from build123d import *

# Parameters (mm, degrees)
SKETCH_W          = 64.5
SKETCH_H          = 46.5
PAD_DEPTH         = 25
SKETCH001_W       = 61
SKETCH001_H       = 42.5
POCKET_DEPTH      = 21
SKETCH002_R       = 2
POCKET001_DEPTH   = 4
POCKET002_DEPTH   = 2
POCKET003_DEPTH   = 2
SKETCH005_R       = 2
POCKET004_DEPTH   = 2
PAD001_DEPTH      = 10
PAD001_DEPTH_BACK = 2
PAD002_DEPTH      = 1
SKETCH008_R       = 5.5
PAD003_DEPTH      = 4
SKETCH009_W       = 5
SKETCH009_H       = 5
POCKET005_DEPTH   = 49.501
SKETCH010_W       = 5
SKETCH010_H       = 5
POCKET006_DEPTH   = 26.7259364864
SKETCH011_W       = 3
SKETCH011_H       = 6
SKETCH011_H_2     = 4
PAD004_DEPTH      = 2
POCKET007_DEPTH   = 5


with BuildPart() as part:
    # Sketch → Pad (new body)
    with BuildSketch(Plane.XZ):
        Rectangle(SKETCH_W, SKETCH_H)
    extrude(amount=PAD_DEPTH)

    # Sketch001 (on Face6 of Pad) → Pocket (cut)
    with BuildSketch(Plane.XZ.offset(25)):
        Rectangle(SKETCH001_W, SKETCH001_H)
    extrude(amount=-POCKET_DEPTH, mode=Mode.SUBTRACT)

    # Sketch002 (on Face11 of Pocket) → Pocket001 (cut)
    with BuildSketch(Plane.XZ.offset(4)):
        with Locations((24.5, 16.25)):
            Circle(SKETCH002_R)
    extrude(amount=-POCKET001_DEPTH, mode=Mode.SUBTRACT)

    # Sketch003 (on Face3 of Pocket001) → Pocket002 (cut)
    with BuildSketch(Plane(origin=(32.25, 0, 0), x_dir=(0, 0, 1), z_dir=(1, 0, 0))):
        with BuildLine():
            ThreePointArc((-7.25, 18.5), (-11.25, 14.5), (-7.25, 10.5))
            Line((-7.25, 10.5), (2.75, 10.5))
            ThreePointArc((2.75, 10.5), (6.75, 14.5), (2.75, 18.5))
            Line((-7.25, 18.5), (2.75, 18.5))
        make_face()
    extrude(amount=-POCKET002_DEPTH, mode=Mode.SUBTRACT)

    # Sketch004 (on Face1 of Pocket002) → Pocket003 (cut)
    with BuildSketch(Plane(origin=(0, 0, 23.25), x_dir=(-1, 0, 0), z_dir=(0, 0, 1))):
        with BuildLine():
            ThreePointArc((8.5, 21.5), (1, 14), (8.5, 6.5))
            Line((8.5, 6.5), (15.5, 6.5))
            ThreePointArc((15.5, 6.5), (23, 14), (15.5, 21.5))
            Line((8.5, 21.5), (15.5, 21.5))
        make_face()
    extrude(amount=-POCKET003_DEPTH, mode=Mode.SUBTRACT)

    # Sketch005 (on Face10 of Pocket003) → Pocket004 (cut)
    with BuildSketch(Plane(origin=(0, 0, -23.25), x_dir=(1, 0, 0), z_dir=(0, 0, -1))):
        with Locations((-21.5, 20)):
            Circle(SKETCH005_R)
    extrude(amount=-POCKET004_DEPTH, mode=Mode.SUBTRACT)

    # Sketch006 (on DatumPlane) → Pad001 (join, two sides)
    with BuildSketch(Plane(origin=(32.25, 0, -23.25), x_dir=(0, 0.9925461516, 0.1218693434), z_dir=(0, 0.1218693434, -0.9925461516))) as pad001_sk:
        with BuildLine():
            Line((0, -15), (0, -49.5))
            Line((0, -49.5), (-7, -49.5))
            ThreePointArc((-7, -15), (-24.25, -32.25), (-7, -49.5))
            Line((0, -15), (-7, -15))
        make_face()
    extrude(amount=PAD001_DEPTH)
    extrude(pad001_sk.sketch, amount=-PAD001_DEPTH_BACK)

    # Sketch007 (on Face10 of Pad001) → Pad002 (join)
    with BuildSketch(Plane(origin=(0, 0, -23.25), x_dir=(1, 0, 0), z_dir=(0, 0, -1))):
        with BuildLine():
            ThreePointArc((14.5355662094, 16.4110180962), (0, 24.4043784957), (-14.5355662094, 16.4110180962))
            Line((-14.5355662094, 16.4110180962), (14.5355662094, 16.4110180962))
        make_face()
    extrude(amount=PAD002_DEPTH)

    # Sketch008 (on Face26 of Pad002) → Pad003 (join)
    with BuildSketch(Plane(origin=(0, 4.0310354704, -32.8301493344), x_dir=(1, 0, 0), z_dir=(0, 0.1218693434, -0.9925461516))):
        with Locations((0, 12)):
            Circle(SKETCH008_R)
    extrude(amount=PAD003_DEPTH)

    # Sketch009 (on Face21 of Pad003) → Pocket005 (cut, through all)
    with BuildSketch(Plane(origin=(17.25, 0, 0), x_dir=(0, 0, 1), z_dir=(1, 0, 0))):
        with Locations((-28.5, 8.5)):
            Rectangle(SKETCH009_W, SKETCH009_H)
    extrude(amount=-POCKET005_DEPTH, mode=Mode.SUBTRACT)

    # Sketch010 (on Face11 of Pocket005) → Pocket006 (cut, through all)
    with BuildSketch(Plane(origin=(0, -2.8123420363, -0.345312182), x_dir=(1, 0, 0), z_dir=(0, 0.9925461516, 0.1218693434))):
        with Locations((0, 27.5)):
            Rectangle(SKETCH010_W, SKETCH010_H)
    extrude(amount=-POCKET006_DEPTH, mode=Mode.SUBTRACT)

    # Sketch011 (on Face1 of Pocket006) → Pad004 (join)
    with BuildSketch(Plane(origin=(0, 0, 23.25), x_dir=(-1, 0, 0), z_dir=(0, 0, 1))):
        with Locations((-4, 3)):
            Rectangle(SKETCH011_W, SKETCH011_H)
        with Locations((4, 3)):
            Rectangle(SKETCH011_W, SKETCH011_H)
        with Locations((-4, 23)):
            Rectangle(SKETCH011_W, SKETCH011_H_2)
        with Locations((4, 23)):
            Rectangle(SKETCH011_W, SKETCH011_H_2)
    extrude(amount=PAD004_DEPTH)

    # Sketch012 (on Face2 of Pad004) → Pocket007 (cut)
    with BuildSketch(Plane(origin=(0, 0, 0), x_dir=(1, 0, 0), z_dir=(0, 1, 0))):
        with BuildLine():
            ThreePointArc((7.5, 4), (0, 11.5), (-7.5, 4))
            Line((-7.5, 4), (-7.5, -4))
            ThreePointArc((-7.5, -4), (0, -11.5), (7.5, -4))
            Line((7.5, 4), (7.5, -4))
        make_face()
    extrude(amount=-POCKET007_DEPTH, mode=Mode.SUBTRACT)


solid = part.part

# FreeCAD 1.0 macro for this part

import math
import FreeCAD as App
import Part
import Sketcher
Q = App.Units.Quantity

doc = App.newDocument("Part")
body = doc.addObject("PartDesign::Body", "Body")

# Sketch on XZ plane
sketch1 = doc.addObject("Sketcher::SketchObject", "Sketch")
body.addObject(sketch1)
sketch1.AttachmentSupport = (doc.XZ_Plane, [""])
sketch1.MapMode = "FlatFace"
sketch1.addGeometry([
    Part.LineSegment(App.Vector(-32.25, 23.25, 0), App.Vector(-32.25, -23.25, 0)),
    Part.LineSegment(App.Vector(-32.25, -23.25, 0), App.Vector(32.25, -23.25, 0)),
    Part.LineSegment(App.Vector(32.25, -23.25, 0), App.Vector(32.25, 23.25, 0)),
    Part.LineSegment(App.Vector(32.25, 23.25, 0), App.Vector(-32.25, 23.25, 0)),
], False)
sketch1.addConstraint([
    Sketcher.Constraint("Coincident", 0, 2, 1, 1),
    Sketcher.Constraint("Coincident", 1, 2, 2, 1),
    Sketcher.Constraint("Coincident", 2, 2, 3, 1),
    Sketcher.Constraint("Coincident", 3, 2, 0, 1),
    Sketcher.Constraint("Vertical", 0),
    Sketcher.Constraint("Horizontal", 1),
    Sketcher.Constraint("Vertical", 2),
    Sketcher.Constraint("Horizontal", 3),
    Sketcher.Constraint("Symmetric", 0, 2, 2, 2, -1, 1),
    Sketcher.Constraint("DistanceX", 1, 1, 1, 2, Q("64.5 mm")),
    Sketcher.Constraint("DistanceY", 0, 2, 0, 1, Q("46.5 mm")),
])
pad1 = doc.addObject("PartDesign::Pad", "Pad")
body.addObject(pad1)
pad1.Profile = sketch1
pad1.Length = 25

# Sketch on XZ plane
sketch2 = doc.addObject("Sketcher::SketchObject", "Sketch001")
body.addObject(sketch2)
sketch2.AttachmentSupport = (doc.XZ_Plane, [""])
sketch2.MapMode = "FlatFace"
sketch2.AttachmentOffset = App.Placement(App.Vector(0, 0, 25), App.Rotation())
sketch2.addGeometry([
    Part.LineSegment(App.Vector(-30.5, 21.25, 0), App.Vector(-30.5, -21.25, 0)),
    Part.LineSegment(App.Vector(-30.5, -21.25, 0), App.Vector(30.5, -21.25, 0)),
    Part.LineSegment(App.Vector(30.5, -21.25, 0), App.Vector(30.5, 21.25, 0)),
    Part.LineSegment(App.Vector(30.5, 21.25, 0), App.Vector(-30.5, 21.25, 0)),
], False)
sketch2.addConstraint([
    Sketcher.Constraint("Coincident", 0, 2, 1, 1),
    Sketcher.Constraint("Coincident", 1, 2, 2, 1),
    Sketcher.Constraint("Coincident", 2, 2, 3, 1),
    Sketcher.Constraint("Coincident", 3, 2, 0, 1),
    Sketcher.Constraint("Vertical", 0),
    Sketcher.Constraint("Horizontal", 1),
    Sketcher.Constraint("Vertical", 2),
    Sketcher.Constraint("Horizontal", 3),
    Sketcher.Constraint("Symmetric", 0, 2, 2, 2, -1, 1),
    Sketcher.Constraint("DistanceX", 1, 1, 1, 2, Q("61 mm")),
    Sketcher.Constraint("DistanceY", 0, 2, 0, 1, Q("42.5 mm")),
])
pocket1 = doc.addObject("PartDesign::Pocket", "Pocket")
body.addObject(pocket1)
pocket1.Profile = sketch2
pocket1.Length = 21

# Sketch on XZ plane
sketch3 = doc.addObject("Sketcher::SketchObject", "Sketch002")
body.addObject(sketch3)
sketch3.AttachmentSupport = (doc.XZ_Plane, [""])
sketch3.MapMode = "FlatFace"
sketch3.AttachmentOffset = App.Placement(App.Vector(0, 0, 4), App.Rotation())
sketch3.addGeometry(Part.Circle(App.Vector(24.5, 16.25, 0), App.Vector(0, 0, 1), 2), False)
sketch3.addConstraint([
    Sketcher.Constraint("Diameter", 0, Q("4 mm")),
    Sketcher.Constraint("DistanceX", -1, 1, 0, 3, Q("24.5 mm")),
    Sketcher.Constraint("DistanceY", -1, 1, 0, 3, Q("16.25 mm")),
])
pocket2 = doc.addObject("PartDesign::Pocket", "Pocket001")
body.addObject(pocket2)
pocket2.Profile = sketch3
pocket2.Length = 4

# Sketch on YZ plane
sketch4 = doc.addObject("Sketcher::SketchObject", "Sketch003")
body.addObject(sketch4)
sketch4.AttachmentSupport = (doc.YZ_Plane, [""])
sketch4.MapMode = "FlatFace"
sketch4.AttachmentOffset = App.Placement(App.Vector(0, 0, 32.25), App.Rotation())
sketch4.addGeometry([
    Part.ArcOfCircle(Part.Circle(App.Vector(-14.5, -7.25, 0), App.Vector(0, 0, 1), 4), math.radians(180), math.radians(360)),
    Part.LineSegment(App.Vector(-10.5, -7.25, 0), App.Vector(-10.5, 2.75, 0)),
    Part.ArcOfCircle(Part.Circle(App.Vector(-14.5, 2.75, 0), App.Vector(0, 0, 1), 4), math.radians(0), math.radians(180)),
    Part.LineSegment(App.Vector(-18.5, 2.75, 0), App.Vector(-18.5, -7.25, 0)),
], False)
sketch4.addConstraint([
    Sketcher.Constraint("Tangent", 0, 2, 1, 1),
    Sketcher.Constraint("Tangent", 1, 2, 2, 1),
    Sketcher.Constraint("Tangent", 2, 2, 3, 1),
    Sketcher.Constraint("Tangent", 3, 2, 0, 1),
    Sketcher.Constraint("Vertical", 1),
    Sketcher.Constraint("Vertical", 3),
    Sketcher.Constraint("Radius", 0, Q("4 mm")),
    Sketcher.Constraint("DistanceY", 1, 1, 1, 2, Q("10 mm")),
    Sketcher.Constraint("DistanceX", 0, 3, -1, 1, Q("14.5 mm")),
    Sketcher.Constraint("DistanceY", 0, 3, -1, 1, Q("7.25 mm")),
])
pocket3 = doc.addObject("PartDesign::Pocket", "Pocket002")
body.addObject(pocket3)
pocket3.Profile = sketch4
pocket3.Length = 2

# Sketch on XY plane
sketch5 = doc.addObject("Sketcher::SketchObject", "Sketch004")
body.addObject(sketch5)
sketch5.AttachmentSupport = (doc.XY_Plane, [""])
sketch5.MapMode = "FlatFace"
sketch5.AttachmentOffset = App.Placement(App.Vector(0, 0, 23.25), App.Rotation())
sketch5.addGeometry([
    Part.ArcOfCircle(Part.Circle(App.Vector(-8.5, -14, 0), App.Vector(0, 0, 1), 7.5), math.radians(-90), math.radians(90)),
    Part.LineSegment(App.Vector(-8.5, -6.5, 0), App.Vector(-15.5, -6.5, 0)),
    Part.ArcOfCircle(Part.Circle(App.Vector(-15.5, -14, 0), App.Vector(0, 0, 1), 7.5), math.radians(90), math.radians(270)),
    Part.LineSegment(App.Vector(-15.5, -21.5, 0), App.Vector(-8.5, -21.5, 0)),
], False)
sketch5.addConstraint([
    Sketcher.Constraint("Tangent", 0, 2, 1, 1),
    Sketcher.Constraint("Tangent", 1, 2, 2, 1),
    Sketcher.Constraint("Tangent", 2, 2, 3, 1),
    Sketcher.Constraint("Tangent", 3, 2, 0, 1),
    Sketcher.Constraint("Horizontal", 1),
    Sketcher.Constraint("Horizontal", 3),
    Sketcher.Constraint("Radius", 0, Q("7.5 mm")),
    Sketcher.Constraint("DistanceX", 1, 2, 1, 1, Q("7 mm")),
    Sketcher.Constraint("DistanceY", 0, 3, -1, 1, Q("14 mm")),
    Sketcher.Constraint("DistanceX", 0, 3, -1, 1, Q("8.5 mm")),
])
pocket4 = doc.addObject("PartDesign::Pocket", "Pocket003")
body.addObject(pocket4)
pocket4.Profile = sketch5
pocket4.Length = 2

# Sketch on XY plane
sketch6 = doc.addObject("Sketcher::SketchObject", "Sketch005")
body.addObject(sketch6)
sketch6.AttachmentSupport = (doc.XY_Plane, [""])
sketch6.MapMode = "FlatFace"
sketch6.AttachmentOffset = App.Placement(App.Vector(0, 0, -23.25), App.Rotation())
sketch6.addGeometry(Part.Circle(App.Vector(-21.5, -20, 0), App.Vector(0, 0, 1), 2), False)
sketch6.addConstraint([
    Sketcher.Constraint("Diameter", 0, Q("4 mm")),
    Sketcher.Constraint("DistanceY", 0, 3, -1, 1, Q("20 mm")),
    Sketcher.Constraint("DistanceX", 0, 3, -1, 1, Q("21.5 mm")),
])
pocket5 = doc.addObject("PartDesign::Pocket", "Pocket004")
body.addObject(pocket5)
pocket5.Profile = sketch6
pocket5.Length = 2
pocket5.Reversed = True

# Sketch on an angled plane
sketch7 = doc.addObject("Sketcher::SketchObject", "Sketch006")
body.addObject(sketch7)
sketch7.Placement = App.Placement(App.Vector(32.25, 0, -23.25), App.Rotation(App.Vector(0, 0.992546152, 0.121869343), App.Vector(1.000000001, 0, 0), App.Vector(0, 0.121869343, -0.992546152), "ZXY"))
sketch7.addGeometry([
    Part.LineSegment(App.Vector(0, -49.5, 0), App.Vector(0, -15, 0)),
    Part.LineSegment(App.Vector(0, -15, 0), App.Vector(-7, -15, 0)),
    Part.ArcOfCircle(Part.Circle(App.Vector(-7, -32.25, 0), App.Vector(0, 0, 1), 17.25), math.radians(90), math.radians(270)),
    Part.LineSegment(App.Vector(-7, -49.5, 0), App.Vector(0, -49.5, 0)),
], False)
sketch7.addConstraint([
    Sketcher.Constraint("Coincident", 0, 2, 1, 1),
    Sketcher.Constraint("Tangent", 1, 2, 2, 1),
    Sketcher.Constraint("Tangent", 2, 2, 3, 1),
    Sketcher.Constraint("Coincident", 3, 2, 0, 1),
    Sketcher.Constraint("Vertical", 0),
    Sketcher.Constraint("Horizontal", 1),
    Sketcher.Constraint("Horizontal", 3),
    Sketcher.Constraint("PointOnObject", 0, 2, -2),
    Sketcher.Constraint("DistanceX", 1, 2, 1, 1, Q("7 mm")),
    Sketcher.Constraint("Radius", 2, Q("17.25 mm")),
    Sketcher.Constraint("DistanceY", 0, 2, -1, 1, Q("15 mm")),
])
pad2 = doc.addObject("PartDesign::Pad", "Pad001")
body.addObject(pad2)
pad2.Profile = sketch7
pad2.Type = "TwoLengths"
pad2.Length = 10
pad2.Length2 = 2

# Sketch on XY plane
sketch8 = doc.addObject("Sketcher::SketchObject", "Sketch007")
body.addObject(sketch8)
sketch8.AttachmentSupport = (doc.XY_Plane, [""])
sketch8.MapMode = "FlatFace"
sketch8.AttachmentOffset = App.Placement(App.Vector(0, 0, -23.25), App.Rotation())
sketch8.addGeometry([
    Part.ArcOfCircle(Part.Circle(App.Vector(0, -7.191562, 0), App.Vector(0, 0, 1), 17.212817), math.radians(-147.614318), math.radians(-32.385682)),
    Part.LineSegment(App.Vector(-14.535566, -16.411018, 0), App.Vector(14.535566, -16.411018, 0)),
], False)
sketch8.addConstraint([
    Sketcher.Constraint("Coincident", 0, 1, 1, 1),
    Sketcher.Constraint("Coincident", 1, 2, 0, 2),
    Sketcher.Constraint("Horizontal", 1),
    Sketcher.Constraint("PointOnObject", 0, 3, -2),
    Sketcher.Constraint("Radius", 0, Q("17.212817 mm")),
    Sketcher.Constraint("DistanceX", 1, 1, 1, 2, Q("29.071132 mm")),
    Sketcher.Constraint("DistanceY", 0, 3, -1, 1, Q("7.191562 mm")),
])
pad3 = doc.addObject("PartDesign::Pad", "Pad002")
body.addObject(pad3)
pad3.Profile = sketch8
pad3.Length = 1
pad3.Reversed = True

# Sketch on an angled plane
sketch9 = doc.addObject("Sketcher::SketchObject", "Sketch008")
body.addObject(sketch9)
sketch9.Placement = App.Placement(App.Vector(0, 4.031035, -32.830149), App.Rotation(App.Vector(1, 0, 0), App.Vector(0, -0.992546152, -0.121869343), App.Vector(0, 0.121869343, -0.992546152), "ZXY"))
sketch9.addGeometry(Part.Circle(App.Vector(0, 12, 0), App.Vector(0, 0, 1), 5.5), False)
sketch9.addConstraint([
    Sketcher.Constraint("PointOnObject", 0, 3, -2),
    Sketcher.Constraint("Diameter", 0, Q("11 mm")),
    Sketcher.Constraint("DistanceY", -1, 1, 0, 3, Q("12 mm")),
])
pad4 = doc.addObject("PartDesign::Pad", "Pad003")
body.addObject(pad4)
pad4.Profile = sketch9
pad4.Length = 4

# Sketch on YZ plane
sketch10 = doc.addObject("Sketcher::SketchObject", "Sketch009")
body.addObject(sketch10)
sketch10.AttachmentSupport = (doc.YZ_Plane, [""])
sketch10.MapMode = "FlatFace"
sketch10.AttachmentOffset = App.Placement(App.Vector(0, 0, 17.25), App.Rotation())
sketch10.addGeometry([
    Part.LineSegment(App.Vector(-11, -31, 0), App.Vector(-6, -31, 0)),
    Part.LineSegment(App.Vector(-6, -31, 0), App.Vector(-6, -26, 0)),
    Part.LineSegment(App.Vector(-6, -26, 0), App.Vector(-11, -26, 0)),
    Part.LineSegment(App.Vector(-11, -26, 0), App.Vector(-11, -31, 0)),
], False)
sketch10.addConstraint([
    Sketcher.Constraint("Coincident", 0, 2, 1, 1),
    Sketcher.Constraint("Coincident", 1, 2, 2, 1),
    Sketcher.Constraint("Coincident", 2, 2, 3, 1),
    Sketcher.Constraint("Coincident", 3, 2, 0, 1),
    Sketcher.Constraint("Horizontal", 0),
    Sketcher.Constraint("Vertical", 1),
    Sketcher.Constraint("Horizontal", 2),
    Sketcher.Constraint("Vertical", 3),
    Sketcher.Constraint("Equal", 2, 1),
    Sketcher.Constraint("DistanceX", 0, 1, 0, 2, Q("5 mm")),
    Sketcher.Constraint("DistanceX", 0, 2, -1, 1, Q("6 mm")),
    Sketcher.Constraint("DistanceY", 0, 2, -1, 1, Q("31 mm")),
])
pocket6 = doc.addObject("PartDesign::Pocket", "Pocket005")
body.addObject(pocket6)
pocket6.Profile = sketch10
pocket6.Type = "ThroughAll"

# Sketch on an angled plane
sketch11 = doc.addObject("Sketcher::SketchObject", "Sketch010")
body.addObject(sketch11)
sketch11.Placement = App.Placement(App.Vector(0, -2.812342, -0.345312), App.Rotation(App.Vector(1, 0, 0), App.Vector(0, 0.121869343, -0.992546152), App.Vector(0, 0.992546152, 0.121869343), "ZXY"))
sketch11.addGeometry([
    Part.LineSegment(App.Vector(-2.5, 30, 0), App.Vector(-2.5, 25, 0)),
    Part.LineSegment(App.Vector(-2.5, 25, 0), App.Vector(2.5, 25, 0)),
    Part.LineSegment(App.Vector(2.5, 25, 0), App.Vector(2.5, 30, 0)),
    Part.LineSegment(App.Vector(2.5, 30, 0), App.Vector(-2.5, 30, 0)),
], False)
sketch11.addConstraint([
    Sketcher.Constraint("Coincident", 0, 2, 1, 1),
    Sketcher.Constraint("Coincident", 1, 2, 2, 1),
    Sketcher.Constraint("Coincident", 2, 2, 3, 1),
    Sketcher.Constraint("Coincident", 3, 2, 0, 1),
    Sketcher.Constraint("Vertical", 0),
    Sketcher.Constraint("Horizontal", 1),
    Sketcher.Constraint("Vertical", 2),
    Sketcher.Constraint("Horizontal", 3),
    Sketcher.Constraint("Equal", 3, 0),
    Sketcher.Constraint("DistanceX", 1, 1, 1, 2, Q("5 mm")),
    Sketcher.Constraint("DistanceY", -1, 1, 0, 2, Q("25 mm")),
    Sketcher.Constraint("DistanceX", 0, 2, -1, 1, Q("2.5 mm")),
])
pocket7 = doc.addObject("PartDesign::Pocket", "Pocket006")
body.addObject(pocket7)
pocket7.Profile = sketch11
pocket7.Type = "ThroughAll"

# Sketch on XY plane
sketch12 = doc.addObject("Sketcher::SketchObject", "Sketch011")
body.addObject(sketch12)
sketch12.AttachmentSupport = (doc.XY_Plane, [""])
sketch12.MapMode = "FlatFace"
sketch12.AttachmentOffset = App.Placement(App.Vector(0, 0, 23.25), App.Rotation())
sketch12.addGeometry([
    Part.LineSegment(App.Vector(5.5, -6, 0), App.Vector(5.5, 0, 0)),  # 0
    Part.LineSegment(App.Vector(5.5, 0, 0), App.Vector(2.5, 0, 0)),  # 1
    Part.LineSegment(App.Vector(2.5, 0, 0), App.Vector(2.5, -6, 0)),  # 2
    Part.LineSegment(App.Vector(2.5, -6, 0), App.Vector(5.5, -6, 0)),  # 3
    Part.LineSegment(App.Vector(-2.5, -6, 0), App.Vector(-2.5, 0, 0)),  # 4
    Part.LineSegment(App.Vector(-2.5, 0, 0), App.Vector(-5.5, 0, 0)),  # 5
    Part.LineSegment(App.Vector(-5.5, 0, 0), App.Vector(-5.5, -6, 0)),  # 6
    Part.LineSegment(App.Vector(-5.5, -6, 0), App.Vector(-2.5, -6, 0)),  # 7
    Part.LineSegment(App.Vector(5.5, -25, 0), App.Vector(5.5, -21, 0)),  # 8
    Part.LineSegment(App.Vector(5.5, -21, 0), App.Vector(2.5, -21, 0)),  # 9
    Part.LineSegment(App.Vector(2.5, -21, 0), App.Vector(2.5, -25, 0)),  # 10
    Part.LineSegment(App.Vector(2.5, -25, 0), App.Vector(5.5, -25, 0)),  # 11
    Part.LineSegment(App.Vector(-2.5, -25, 0), App.Vector(-2.5, -21, 0)),  # 12
    Part.LineSegment(App.Vector(-2.5, -21, 0), App.Vector(-5.5, -21, 0)),  # 13
    Part.LineSegment(App.Vector(-5.5, -21, 0), App.Vector(-5.5, -25, 0)),  # 14
    Part.LineSegment(App.Vector(-5.5, -25, 0), App.Vector(-2.5, -25, 0)),  # 15
], False)
sketch12.addConstraint([
    Sketcher.Constraint("Coincident", 0, 2, 1, 1),
    Sketcher.Constraint("Coincident", 1, 2, 2, 1),
    Sketcher.Constraint("Coincident", 2, 2, 3, 1),
    Sketcher.Constraint("Coincident", 3, 2, 0, 1),
    Sketcher.Constraint("Coincident", 4, 2, 5, 1),
    Sketcher.Constraint("Coincident", 5, 2, 6, 1),
    Sketcher.Constraint("Coincident", 6, 2, 7, 1),
    Sketcher.Constraint("Coincident", 7, 2, 4, 1),
    Sketcher.Constraint("Coincident", 8, 2, 9, 1),
    Sketcher.Constraint("Coincident", 9, 2, 10, 1),
    Sketcher.Constraint("Coincident", 10, 2, 11, 1),
    Sketcher.Constraint("Coincident", 11, 2, 8, 1),
    Sketcher.Constraint("Coincident", 12, 2, 13, 1),
    Sketcher.Constraint("Coincident", 13, 2, 14, 1),
    Sketcher.Constraint("Coincident", 14, 2, 15, 1),
    Sketcher.Constraint("Coincident", 15, 2, 12, 1),
    Sketcher.Constraint("Vertical", 0),
    Sketcher.Constraint("Horizontal", 1),
    Sketcher.Constraint("Vertical", 2),
    Sketcher.Constraint("Horizontal", 3),
    Sketcher.Constraint("Vertical", 4),
    Sketcher.Constraint("Horizontal", 5),
    Sketcher.Constraint("Vertical", 6),
    Sketcher.Constraint("Horizontal", 7),
    Sketcher.Constraint("Vertical", 8),
    Sketcher.Constraint("Horizontal", 9),
    Sketcher.Constraint("Vertical", 10),
    Sketcher.Constraint("Horizontal", 11),
    Sketcher.Constraint("Vertical", 12),
    Sketcher.Constraint("Horizontal", 13),
    Sketcher.Constraint("Vertical", 14),
    Sketcher.Constraint("Horizontal", 15),
    Sketcher.Constraint("Symmetric", 1, 2, 4, 2, -1, 1),
    Sketcher.Constraint("Symmetric", 0, 2, 5, 2, -2),
    Sketcher.Constraint("Symmetric", 9, 2, 12, 2, -2),
    Sketcher.Constraint("Symmetric", 11, 2, 14, 2, -2),
    Sketcher.Constraint("Horizontal", 3, 2, 6, 2),
    Sketcher.Constraint("Vertical", 3, 2, 8, 2),
    Sketcher.Constraint("Vertical", 2, 2, 9, 2),
    Sketcher.Constraint("DistanceX", 1, 2, 1, 1, Q("3 mm")),
    Sketcher.Constraint("DistanceY", 0, 1, 0, 2, Q("6 mm")),
    Sketcher.Constraint("DistanceY", 8, 1, 8, 2, Q("4 mm")),
    Sketcher.Constraint("DistanceY", 8, 2, -1, 1, Q("21 mm")),
    Sketcher.Constraint("DistanceX", 4, 2, 1, 2, Q("5 mm")),
])
pad5 = doc.addObject("PartDesign::Pad", "Pad004")
body.addObject(pad5)
pad5.Profile = sketch12
pad5.Length = 2

# Sketch on XZ plane
sketch13 = doc.addObject("Sketcher::SketchObject", "Sketch012")
body.addObject(sketch13)
sketch13.AttachmentSupport = (doc.XZ_Plane, [""])
sketch13.MapMode = "FlatFace"
sketch13.addGeometry([
    Part.ArcOfCircle(Part.Circle(App.Vector(0, -4, 0), App.Vector(0, 0, 1), 7.5), math.radians(180), math.radians(360)),
    Part.LineSegment(App.Vector(-7.5, -4, 0), App.Vector(-7.5, 4, 0)),
    Part.ArcOfCircle(Part.Circle(App.Vector(0, 4, 0), App.Vector(0, 0, 1), 7.5), math.radians(0), math.radians(180)),
    Part.LineSegment(App.Vector(7.5, 4, 0), App.Vector(7.5, -4, 0)),
], False)
sketch13.addConstraint([
    Sketcher.Constraint("Tangent", 0, 1, 1, 1),
    Sketcher.Constraint("Tangent", 1, 2, 2, 2),
    Sketcher.Constraint("Tangent", 2, 1, 3, 1),
    Sketcher.Constraint("Tangent", 3, 2, 0, 2),
    Sketcher.Constraint("Vertical", 1),
    Sketcher.Constraint("Vertical", 3),
    Sketcher.Constraint("Symmetric", 0, 3, 2, 3, -1, 1),
    Sketcher.Constraint("Radius", 0, Q("7.5 mm")),
    Sketcher.Constraint("DistanceY", 1, 1, 1, 2, Q("8 mm")),
])
pocket8 = doc.addObject("PartDesign::Pocket", "Pocket007")
body.addObject(pocket8)
pocket8.Profile = sketch13
pocket8.Length = 5
pocket8.Reversed = True

doc.recompute()
